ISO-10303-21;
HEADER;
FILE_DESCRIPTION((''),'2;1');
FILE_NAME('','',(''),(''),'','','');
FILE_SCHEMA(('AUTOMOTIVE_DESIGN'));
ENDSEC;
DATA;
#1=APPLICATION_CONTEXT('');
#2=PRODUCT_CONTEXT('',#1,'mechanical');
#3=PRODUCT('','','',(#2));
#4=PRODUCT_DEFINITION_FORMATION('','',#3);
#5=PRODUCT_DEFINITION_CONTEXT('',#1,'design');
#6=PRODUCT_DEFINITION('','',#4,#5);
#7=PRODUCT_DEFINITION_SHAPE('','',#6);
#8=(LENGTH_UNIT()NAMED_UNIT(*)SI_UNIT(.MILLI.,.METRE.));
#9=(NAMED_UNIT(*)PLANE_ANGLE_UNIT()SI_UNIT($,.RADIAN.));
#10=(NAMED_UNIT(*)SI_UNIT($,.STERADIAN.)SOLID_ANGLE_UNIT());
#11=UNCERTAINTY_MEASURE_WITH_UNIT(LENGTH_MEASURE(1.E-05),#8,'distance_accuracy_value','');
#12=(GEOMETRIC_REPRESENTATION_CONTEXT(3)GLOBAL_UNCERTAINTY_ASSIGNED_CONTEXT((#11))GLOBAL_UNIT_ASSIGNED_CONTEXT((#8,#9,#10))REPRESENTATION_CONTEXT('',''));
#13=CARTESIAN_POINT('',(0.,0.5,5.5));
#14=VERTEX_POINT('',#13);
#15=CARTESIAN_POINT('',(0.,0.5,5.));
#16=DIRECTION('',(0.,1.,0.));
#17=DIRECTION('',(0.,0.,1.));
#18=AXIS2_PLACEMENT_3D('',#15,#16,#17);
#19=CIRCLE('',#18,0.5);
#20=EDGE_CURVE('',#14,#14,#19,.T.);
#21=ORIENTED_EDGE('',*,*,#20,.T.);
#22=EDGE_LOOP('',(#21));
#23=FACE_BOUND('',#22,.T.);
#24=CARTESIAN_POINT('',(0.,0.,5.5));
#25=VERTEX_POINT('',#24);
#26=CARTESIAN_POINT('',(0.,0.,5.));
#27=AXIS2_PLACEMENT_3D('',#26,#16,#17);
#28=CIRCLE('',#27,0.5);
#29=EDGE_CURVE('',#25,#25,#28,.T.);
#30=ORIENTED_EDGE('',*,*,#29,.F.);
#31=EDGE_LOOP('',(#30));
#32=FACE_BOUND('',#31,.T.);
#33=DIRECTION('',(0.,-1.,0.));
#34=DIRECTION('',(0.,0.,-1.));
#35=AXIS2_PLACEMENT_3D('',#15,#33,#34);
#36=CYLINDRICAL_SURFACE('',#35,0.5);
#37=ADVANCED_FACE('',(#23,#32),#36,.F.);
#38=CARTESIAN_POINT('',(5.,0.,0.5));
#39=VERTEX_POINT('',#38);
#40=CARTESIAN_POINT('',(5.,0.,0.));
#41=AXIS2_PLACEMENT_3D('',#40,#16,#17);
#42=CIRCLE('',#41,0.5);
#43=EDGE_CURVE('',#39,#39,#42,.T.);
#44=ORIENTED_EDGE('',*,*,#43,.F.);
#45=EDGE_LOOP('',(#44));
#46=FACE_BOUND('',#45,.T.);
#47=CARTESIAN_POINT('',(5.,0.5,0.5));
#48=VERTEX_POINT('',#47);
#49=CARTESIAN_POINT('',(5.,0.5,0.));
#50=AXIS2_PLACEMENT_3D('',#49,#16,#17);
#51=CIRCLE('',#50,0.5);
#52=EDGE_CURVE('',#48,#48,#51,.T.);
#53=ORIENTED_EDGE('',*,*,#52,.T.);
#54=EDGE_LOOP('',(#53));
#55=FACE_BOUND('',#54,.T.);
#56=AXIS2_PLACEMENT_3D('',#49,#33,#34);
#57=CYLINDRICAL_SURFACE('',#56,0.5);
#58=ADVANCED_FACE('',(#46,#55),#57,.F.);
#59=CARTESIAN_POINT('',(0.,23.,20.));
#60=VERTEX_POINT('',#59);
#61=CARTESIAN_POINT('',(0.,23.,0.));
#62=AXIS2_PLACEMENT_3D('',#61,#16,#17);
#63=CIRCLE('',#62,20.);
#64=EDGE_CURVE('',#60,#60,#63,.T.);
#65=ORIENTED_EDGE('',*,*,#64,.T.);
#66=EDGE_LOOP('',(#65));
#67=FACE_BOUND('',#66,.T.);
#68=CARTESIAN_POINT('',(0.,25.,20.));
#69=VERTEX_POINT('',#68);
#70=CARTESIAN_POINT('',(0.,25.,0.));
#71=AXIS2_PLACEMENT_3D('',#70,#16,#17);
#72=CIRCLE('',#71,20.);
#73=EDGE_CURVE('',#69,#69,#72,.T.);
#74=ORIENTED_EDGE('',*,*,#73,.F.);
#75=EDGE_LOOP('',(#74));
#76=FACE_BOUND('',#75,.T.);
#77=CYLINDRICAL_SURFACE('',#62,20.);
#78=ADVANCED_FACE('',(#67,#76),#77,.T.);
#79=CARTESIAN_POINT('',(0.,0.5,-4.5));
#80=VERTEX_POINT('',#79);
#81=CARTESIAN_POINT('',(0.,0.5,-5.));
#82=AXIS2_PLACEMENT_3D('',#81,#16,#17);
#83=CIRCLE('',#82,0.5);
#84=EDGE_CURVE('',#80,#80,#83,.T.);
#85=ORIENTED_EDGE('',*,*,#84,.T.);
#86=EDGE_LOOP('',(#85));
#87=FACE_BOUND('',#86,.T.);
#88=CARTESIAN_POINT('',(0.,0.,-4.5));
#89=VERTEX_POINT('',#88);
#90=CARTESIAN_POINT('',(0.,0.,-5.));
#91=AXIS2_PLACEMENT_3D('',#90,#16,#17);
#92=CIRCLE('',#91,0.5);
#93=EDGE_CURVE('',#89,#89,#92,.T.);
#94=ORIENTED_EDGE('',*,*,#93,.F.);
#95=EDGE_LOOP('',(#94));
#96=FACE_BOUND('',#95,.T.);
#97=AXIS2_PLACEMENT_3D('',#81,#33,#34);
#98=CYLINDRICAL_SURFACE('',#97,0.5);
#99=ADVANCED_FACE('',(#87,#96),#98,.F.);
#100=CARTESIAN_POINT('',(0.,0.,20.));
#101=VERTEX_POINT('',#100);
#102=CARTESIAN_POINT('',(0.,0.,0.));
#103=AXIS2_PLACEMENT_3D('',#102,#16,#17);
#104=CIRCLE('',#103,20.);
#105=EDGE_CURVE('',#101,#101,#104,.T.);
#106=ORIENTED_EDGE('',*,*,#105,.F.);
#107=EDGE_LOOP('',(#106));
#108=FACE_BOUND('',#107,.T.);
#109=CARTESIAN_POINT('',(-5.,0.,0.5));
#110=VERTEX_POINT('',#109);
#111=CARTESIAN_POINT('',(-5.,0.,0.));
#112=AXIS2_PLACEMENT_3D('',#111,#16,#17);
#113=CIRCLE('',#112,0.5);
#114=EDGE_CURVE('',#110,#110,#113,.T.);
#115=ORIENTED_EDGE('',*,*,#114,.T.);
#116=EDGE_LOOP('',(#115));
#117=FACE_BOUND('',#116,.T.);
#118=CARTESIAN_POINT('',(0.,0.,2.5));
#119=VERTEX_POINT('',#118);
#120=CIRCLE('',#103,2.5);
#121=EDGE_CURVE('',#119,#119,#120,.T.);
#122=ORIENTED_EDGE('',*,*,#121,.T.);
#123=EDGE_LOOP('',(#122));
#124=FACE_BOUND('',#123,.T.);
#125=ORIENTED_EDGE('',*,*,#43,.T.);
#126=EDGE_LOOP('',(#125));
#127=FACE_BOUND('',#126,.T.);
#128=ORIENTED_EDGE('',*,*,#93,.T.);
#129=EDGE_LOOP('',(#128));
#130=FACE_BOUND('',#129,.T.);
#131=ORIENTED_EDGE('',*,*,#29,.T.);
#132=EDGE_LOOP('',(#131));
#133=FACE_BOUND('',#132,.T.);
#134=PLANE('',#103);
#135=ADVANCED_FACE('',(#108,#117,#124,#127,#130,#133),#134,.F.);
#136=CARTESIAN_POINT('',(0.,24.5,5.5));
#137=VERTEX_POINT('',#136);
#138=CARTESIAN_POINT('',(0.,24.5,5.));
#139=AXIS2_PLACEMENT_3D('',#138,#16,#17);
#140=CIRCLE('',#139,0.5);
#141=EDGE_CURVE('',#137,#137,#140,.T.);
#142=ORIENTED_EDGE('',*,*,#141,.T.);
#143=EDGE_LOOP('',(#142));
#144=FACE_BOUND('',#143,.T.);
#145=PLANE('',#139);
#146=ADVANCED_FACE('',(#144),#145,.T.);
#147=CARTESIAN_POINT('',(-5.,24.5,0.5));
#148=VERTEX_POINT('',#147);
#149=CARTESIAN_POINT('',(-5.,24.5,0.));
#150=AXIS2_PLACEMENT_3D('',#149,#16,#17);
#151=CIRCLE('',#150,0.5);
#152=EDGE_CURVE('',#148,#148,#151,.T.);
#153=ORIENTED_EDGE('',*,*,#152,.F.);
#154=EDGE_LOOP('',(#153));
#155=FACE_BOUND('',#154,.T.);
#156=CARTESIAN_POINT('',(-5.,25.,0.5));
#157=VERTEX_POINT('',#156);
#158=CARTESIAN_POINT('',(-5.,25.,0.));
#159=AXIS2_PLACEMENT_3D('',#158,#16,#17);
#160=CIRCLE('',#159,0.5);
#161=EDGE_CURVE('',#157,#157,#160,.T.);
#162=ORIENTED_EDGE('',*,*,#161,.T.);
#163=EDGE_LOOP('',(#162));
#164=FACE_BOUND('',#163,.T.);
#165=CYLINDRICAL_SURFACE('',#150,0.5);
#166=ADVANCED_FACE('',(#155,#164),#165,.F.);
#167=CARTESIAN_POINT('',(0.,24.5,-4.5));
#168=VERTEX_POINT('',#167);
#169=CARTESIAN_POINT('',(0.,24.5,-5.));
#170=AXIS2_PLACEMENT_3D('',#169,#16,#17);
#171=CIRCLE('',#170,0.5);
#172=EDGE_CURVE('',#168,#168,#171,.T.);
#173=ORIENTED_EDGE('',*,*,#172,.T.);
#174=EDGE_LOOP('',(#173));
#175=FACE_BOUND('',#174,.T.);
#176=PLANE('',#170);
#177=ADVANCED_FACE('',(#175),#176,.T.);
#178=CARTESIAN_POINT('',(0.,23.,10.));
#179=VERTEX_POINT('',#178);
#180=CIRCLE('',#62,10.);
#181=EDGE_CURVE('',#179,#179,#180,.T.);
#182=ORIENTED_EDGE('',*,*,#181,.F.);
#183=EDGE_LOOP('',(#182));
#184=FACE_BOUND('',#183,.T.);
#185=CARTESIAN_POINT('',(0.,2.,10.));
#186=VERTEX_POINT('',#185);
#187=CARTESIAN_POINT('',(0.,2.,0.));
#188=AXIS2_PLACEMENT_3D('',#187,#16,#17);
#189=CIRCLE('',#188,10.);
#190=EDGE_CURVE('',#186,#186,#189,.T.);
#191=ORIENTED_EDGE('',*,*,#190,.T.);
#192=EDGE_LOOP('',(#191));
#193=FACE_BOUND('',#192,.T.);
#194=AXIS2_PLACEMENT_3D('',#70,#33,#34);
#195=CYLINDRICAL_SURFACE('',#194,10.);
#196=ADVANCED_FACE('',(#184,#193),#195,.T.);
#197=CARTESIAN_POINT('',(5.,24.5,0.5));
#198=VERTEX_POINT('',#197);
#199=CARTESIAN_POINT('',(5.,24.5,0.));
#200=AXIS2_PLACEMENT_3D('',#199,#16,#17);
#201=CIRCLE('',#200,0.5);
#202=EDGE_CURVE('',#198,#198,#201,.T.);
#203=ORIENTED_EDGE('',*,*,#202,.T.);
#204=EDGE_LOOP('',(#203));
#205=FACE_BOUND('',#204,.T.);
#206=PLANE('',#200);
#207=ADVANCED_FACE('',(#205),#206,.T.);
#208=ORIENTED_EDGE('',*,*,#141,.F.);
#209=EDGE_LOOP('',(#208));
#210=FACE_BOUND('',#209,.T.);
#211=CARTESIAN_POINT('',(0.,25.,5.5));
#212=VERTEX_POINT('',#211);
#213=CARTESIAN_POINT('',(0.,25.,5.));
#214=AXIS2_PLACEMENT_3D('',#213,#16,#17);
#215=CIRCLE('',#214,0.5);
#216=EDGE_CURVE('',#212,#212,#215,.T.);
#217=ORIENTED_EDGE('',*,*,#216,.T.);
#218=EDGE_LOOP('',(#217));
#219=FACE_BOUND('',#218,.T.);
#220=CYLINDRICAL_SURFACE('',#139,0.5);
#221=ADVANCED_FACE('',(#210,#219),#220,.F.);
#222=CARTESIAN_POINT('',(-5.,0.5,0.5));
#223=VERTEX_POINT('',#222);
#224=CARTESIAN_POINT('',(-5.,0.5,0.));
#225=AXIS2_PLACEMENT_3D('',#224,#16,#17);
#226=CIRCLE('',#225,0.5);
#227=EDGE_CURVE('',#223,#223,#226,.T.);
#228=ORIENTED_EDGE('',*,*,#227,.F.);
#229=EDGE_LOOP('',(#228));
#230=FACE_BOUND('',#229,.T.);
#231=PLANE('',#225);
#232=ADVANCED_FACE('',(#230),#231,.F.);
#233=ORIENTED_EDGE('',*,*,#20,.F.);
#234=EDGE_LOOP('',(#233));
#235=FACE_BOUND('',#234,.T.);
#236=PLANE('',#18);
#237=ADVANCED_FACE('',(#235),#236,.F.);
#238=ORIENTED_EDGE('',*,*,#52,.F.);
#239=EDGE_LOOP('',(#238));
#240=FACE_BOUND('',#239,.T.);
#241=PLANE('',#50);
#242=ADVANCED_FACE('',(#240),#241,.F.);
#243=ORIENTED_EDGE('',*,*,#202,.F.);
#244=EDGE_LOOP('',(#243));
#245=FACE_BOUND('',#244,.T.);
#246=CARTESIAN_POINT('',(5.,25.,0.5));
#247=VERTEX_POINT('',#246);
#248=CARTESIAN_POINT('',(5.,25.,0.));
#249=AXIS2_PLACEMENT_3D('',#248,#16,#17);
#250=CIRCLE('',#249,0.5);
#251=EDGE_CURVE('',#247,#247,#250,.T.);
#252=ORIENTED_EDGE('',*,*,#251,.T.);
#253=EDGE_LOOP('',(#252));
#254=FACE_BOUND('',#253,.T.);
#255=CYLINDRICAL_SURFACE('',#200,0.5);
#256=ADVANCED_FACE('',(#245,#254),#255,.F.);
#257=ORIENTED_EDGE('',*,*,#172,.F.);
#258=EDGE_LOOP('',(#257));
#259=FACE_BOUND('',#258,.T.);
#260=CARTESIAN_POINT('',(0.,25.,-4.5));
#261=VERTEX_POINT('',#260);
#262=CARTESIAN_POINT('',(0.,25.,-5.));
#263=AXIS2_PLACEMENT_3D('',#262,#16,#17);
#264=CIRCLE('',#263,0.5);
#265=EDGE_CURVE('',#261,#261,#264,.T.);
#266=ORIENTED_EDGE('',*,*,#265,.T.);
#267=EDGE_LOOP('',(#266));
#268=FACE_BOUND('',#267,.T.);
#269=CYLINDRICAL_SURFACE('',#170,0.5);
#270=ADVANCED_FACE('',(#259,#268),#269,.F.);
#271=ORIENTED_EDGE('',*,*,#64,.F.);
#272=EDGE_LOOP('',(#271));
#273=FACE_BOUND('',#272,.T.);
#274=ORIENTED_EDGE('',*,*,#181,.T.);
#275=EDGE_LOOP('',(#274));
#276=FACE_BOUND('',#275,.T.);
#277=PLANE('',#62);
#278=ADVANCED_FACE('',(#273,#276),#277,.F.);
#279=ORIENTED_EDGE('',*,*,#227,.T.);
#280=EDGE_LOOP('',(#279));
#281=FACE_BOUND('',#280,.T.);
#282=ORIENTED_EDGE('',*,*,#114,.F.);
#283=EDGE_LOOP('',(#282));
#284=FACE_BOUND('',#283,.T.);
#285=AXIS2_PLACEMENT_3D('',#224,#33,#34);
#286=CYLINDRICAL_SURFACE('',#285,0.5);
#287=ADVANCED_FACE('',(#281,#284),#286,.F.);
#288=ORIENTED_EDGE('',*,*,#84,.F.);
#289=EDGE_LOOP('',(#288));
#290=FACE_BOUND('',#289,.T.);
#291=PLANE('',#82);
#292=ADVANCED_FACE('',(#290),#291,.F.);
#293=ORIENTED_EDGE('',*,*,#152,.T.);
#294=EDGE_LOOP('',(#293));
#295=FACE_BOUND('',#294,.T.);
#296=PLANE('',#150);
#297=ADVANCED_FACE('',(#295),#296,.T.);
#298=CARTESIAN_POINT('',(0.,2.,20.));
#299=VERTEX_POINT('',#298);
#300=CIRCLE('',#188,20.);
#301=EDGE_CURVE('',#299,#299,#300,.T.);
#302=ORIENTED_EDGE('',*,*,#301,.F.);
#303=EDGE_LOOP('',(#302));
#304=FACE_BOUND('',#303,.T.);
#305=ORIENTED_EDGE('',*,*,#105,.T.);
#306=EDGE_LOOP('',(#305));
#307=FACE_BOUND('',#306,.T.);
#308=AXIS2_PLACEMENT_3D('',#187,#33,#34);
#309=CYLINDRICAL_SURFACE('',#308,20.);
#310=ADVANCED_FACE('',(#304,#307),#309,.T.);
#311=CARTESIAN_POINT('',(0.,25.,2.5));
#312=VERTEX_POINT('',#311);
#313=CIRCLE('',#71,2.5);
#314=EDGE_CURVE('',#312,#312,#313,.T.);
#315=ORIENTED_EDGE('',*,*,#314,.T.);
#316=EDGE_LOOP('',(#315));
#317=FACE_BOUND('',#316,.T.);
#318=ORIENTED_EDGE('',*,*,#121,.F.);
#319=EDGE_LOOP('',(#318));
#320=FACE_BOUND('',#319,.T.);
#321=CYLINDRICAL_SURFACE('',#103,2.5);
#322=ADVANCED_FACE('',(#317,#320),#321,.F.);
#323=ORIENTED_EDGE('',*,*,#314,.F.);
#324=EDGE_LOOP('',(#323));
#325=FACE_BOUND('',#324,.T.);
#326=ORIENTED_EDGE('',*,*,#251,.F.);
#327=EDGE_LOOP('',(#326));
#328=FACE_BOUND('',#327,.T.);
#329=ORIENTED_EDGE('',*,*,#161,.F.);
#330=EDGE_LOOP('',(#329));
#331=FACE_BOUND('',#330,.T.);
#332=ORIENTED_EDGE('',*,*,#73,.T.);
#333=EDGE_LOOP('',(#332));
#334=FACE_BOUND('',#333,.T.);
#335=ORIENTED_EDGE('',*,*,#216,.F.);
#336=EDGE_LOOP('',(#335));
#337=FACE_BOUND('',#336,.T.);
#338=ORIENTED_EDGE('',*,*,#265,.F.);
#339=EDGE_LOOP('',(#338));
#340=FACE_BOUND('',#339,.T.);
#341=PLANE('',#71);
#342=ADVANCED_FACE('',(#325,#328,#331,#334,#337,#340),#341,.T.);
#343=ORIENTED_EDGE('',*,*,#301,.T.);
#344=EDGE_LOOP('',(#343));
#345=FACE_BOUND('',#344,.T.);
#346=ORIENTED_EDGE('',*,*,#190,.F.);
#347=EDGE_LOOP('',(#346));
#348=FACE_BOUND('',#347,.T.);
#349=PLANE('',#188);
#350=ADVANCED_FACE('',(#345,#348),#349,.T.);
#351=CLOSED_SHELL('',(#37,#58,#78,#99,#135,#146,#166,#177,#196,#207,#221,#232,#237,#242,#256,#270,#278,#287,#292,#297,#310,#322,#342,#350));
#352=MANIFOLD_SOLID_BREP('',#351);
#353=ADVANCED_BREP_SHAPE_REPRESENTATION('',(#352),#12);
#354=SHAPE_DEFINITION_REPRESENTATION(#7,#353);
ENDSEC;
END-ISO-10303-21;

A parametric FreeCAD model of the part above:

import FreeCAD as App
import Part
import Sketcher
Q = App.Units.Quantity

doc = App.newDocument("Part")
body = doc.addObject("PartDesign::Body", "Body")

sketch1 = doc.addObject("Sketcher::SketchObject", "Sketch")
body.addObject(sketch1)
sketch1.AttachmentSupport = (doc.XZ_Plane, [""])
sketch1.MapMode = "FlatFace"
sketch1.addGeometry(Part.Circle(App.Vector(0, 0, 0), App.Vector(0, 0, 1), 10), False)
sketch1.addConstraint([
    Sketcher.Constraint("Coincident", 0, 3, -1, 1),
    Sketcher.Constraint("Diameter", 0, Q("20 mm")),
])
pad1 = doc.addObject("PartDesign::Pad", "Pad")
body.addObject(pad1)
pad1.Profile = sketch1
pad1.Length = 25
pad1.Reversed = True

sketch2 = doc.addObject("Sketcher::SketchObject", "Sketch001")
body.addObject(sketch2)
sketch2.AttachmentSupport = (doc.XZ_Plane, [""])
sketch2.MapMode = "FlatFace"
sketch2.AttachmentOffset = App.Placement(App.Vector(0, 0, -25), App.Rotation())
sketch2.addGeometry(Part.Circle(App.Vector(0, 0, 0), App.Vector(0, 0, 1), 20), False)
sketch2.addConstraint([
    Sketcher.Constraint("Coincident", 0, 3, -1, 1),
    Sketcher.Constraint("Diameter", 0, Q("40 mm")),
])
pad2 = doc.addObject("PartDesign::Pad", "Pad001")
body.addObject(pad2)
pad2.Profile = sketch2
pad2.Length = 2

sketch3 = doc.addObject("Sketcher::SketchObject", "Sketch002")
body.addObject(sketch3)
sketch3.AttachmentSupport = (doc.XZ_Plane, [""])
sketch3.MapMode = "FlatFace"
sketch3.addGeometry(Part.Circle(App.Vector(0, 0, 0), App.Vector(0, 0, 1), 20), False)
sketch3.addConstraint([
    Sketcher.Constraint("Coincident", 0, 3, -1, 1),
    Sketcher.Constraint("Diameter", 0, Q("40 mm")),
])
pad3 = doc.addObject("PartDesign::Pad", "Pad002")
body.addObject(pad3)
pad3.Profile = sketch3
pad3.Length = 2
pad3.Reversed = True

sketch4 = doc.addObject("Sketcher::SketchObject", "Sketch003")
body.addObject(sketch4)
sketch4.AttachmentSupport = (doc.XZ_Plane, [""])
sketch4.MapMode = "FlatFace"
sketch4.AttachmentOffset = App.Placement(App.Vector(0, 0, -25), App.Rotation())
sketch4.addGeometry(Part.Circle(App.Vector(0, 0, 0), App.Vector(0, 0, 1), 2.5), False)
sketch4.addConstraint([
    Sketcher.Constraint("Coincident", 0, 3, -1, 1),
    Sketcher.Constraint("Diameter", 0, Q("5 mm")),
])
pocket1 = doc.addObject("PartDesign::Pocket", "Pocket")
body.addObject(pocket1)
pocket1.Profile = sketch4
pocket1.Type = "ThroughAll"
pocket1.Reversed = True

sketch5 = doc.addObject("Sketcher::SketchObject", "Sketch004")
body.addObject(sketch5)
sketch5.AttachmentSupport = (doc.XZ_Plane, [""])
sketch5.MapMode = "FlatFace"
sketch5.AttachmentOffset = App.Placement(App.Vector(0, 0, -25), App.Rotation())
sketch5.addGeometry([
    Part.Circle(App.Vector(0, -5, 0), App.Vector(0, 0, 1), 0.5),
    Part.Circle(App.Vector(5, 0, 0), App.Vector(0, 0, 1), 0.5),
    Part.Circle(App.Vector(0, 5, 0), App.Vector(0, 0, 1), 0.5),
    Part.Circle(App.Vector(-5, 0, 0), App.Vector(0, 0, 1), 0.5),
], False)
sketch5.addConstraint([
    Sketcher.Constraint("Equal", 0, 1),
    Sketcher.Constraint("Equal", 1, 2),
    Sketcher.Constraint("Equal", 2, 3),
    Sketcher.Constraint("Symmetric", 0, 3, 2, 3, -1, 1),
    Sketcher.Constraint("Symmetric", 1, 3, 3, 3, -1, 1),
    Sketcher.Constraint("PointOnObject", 0, 3, -2),
    Sketcher.Constraint("PointOnObject", 1, 3, -1),
    Sketcher.Constraint("Diameter", 0, Q("1 mm")),
    Sketcher.Constraint("DistanceY", 0, 3, -1, 1, Q("5 mm")),
    Sketcher.Constraint("DistanceX", -1, 1, 1, 3, Q("5 mm")),
])
pocket2 = doc.addObject("PartDesign::Pocket", "Pocket001")
body.addObject(pocket2)
pocket2.Profile = sketch5
pocket2.Length = 0.5
pocket2.Reversed = True

sketch6 = doc.addObject("Sketcher::SketchObject", "Sketch005")
body.addObject(sketch6)
sketch6.AttachmentSupport = (doc.XZ_Plane, [""])
sketch6.MapMode = "FlatFace"
sketch6.addGeometry([
    Part.Circle(App.Vector(0, -5, 0), App.Vector(0, 0, 1), 0.5),
    Part.Circle(App.Vector(5, 0, 0), App.Vector(0, 0, 1), 0.5),
    Part.Circle(App.Vector(0, 5, 0), App.Vector(0, 0, 1), 0.5),
    Part.Circle(App.Vector(-5, 0, 0), App.Vector(0, 0, 1), 0.5),
], False)
sketch6.addConstraint([
    Sketcher.Constraint("Equal", 0, 1),
    Sketcher.Constraint("Equal", 1, 2),
    Sketcher.Constraint("Equal", 2, 3),
    Sketcher.Constraint("Symmetric", 0, 3, 2, 3, -1, 1),
    Sketcher.Constraint("Symmetric", 1, 3, 3, 3, -1, 1),
    Sketcher.Constraint("PointOnObject", 0, 3, -2),
    Sketcher.Constraint("PointOnObject", 1, 3, -1),
    Sketcher.Constraint("Diameter", 0, Q("1 mm")),
    Sketcher.Constraint("DistanceY", 0, 3, -1, 1, Q("5 mm")),
    Sketcher.Constraint("DistanceX", -1, 1, 1, 3, Q("5 mm")),
])
pocket3 = doc.addObject("PartDesign::Pocket", "Pocket002")
body.addObject(pocket3)
pocket3.Profile = sketch6
pocket3.Length = 0.5

doc.recompute()
